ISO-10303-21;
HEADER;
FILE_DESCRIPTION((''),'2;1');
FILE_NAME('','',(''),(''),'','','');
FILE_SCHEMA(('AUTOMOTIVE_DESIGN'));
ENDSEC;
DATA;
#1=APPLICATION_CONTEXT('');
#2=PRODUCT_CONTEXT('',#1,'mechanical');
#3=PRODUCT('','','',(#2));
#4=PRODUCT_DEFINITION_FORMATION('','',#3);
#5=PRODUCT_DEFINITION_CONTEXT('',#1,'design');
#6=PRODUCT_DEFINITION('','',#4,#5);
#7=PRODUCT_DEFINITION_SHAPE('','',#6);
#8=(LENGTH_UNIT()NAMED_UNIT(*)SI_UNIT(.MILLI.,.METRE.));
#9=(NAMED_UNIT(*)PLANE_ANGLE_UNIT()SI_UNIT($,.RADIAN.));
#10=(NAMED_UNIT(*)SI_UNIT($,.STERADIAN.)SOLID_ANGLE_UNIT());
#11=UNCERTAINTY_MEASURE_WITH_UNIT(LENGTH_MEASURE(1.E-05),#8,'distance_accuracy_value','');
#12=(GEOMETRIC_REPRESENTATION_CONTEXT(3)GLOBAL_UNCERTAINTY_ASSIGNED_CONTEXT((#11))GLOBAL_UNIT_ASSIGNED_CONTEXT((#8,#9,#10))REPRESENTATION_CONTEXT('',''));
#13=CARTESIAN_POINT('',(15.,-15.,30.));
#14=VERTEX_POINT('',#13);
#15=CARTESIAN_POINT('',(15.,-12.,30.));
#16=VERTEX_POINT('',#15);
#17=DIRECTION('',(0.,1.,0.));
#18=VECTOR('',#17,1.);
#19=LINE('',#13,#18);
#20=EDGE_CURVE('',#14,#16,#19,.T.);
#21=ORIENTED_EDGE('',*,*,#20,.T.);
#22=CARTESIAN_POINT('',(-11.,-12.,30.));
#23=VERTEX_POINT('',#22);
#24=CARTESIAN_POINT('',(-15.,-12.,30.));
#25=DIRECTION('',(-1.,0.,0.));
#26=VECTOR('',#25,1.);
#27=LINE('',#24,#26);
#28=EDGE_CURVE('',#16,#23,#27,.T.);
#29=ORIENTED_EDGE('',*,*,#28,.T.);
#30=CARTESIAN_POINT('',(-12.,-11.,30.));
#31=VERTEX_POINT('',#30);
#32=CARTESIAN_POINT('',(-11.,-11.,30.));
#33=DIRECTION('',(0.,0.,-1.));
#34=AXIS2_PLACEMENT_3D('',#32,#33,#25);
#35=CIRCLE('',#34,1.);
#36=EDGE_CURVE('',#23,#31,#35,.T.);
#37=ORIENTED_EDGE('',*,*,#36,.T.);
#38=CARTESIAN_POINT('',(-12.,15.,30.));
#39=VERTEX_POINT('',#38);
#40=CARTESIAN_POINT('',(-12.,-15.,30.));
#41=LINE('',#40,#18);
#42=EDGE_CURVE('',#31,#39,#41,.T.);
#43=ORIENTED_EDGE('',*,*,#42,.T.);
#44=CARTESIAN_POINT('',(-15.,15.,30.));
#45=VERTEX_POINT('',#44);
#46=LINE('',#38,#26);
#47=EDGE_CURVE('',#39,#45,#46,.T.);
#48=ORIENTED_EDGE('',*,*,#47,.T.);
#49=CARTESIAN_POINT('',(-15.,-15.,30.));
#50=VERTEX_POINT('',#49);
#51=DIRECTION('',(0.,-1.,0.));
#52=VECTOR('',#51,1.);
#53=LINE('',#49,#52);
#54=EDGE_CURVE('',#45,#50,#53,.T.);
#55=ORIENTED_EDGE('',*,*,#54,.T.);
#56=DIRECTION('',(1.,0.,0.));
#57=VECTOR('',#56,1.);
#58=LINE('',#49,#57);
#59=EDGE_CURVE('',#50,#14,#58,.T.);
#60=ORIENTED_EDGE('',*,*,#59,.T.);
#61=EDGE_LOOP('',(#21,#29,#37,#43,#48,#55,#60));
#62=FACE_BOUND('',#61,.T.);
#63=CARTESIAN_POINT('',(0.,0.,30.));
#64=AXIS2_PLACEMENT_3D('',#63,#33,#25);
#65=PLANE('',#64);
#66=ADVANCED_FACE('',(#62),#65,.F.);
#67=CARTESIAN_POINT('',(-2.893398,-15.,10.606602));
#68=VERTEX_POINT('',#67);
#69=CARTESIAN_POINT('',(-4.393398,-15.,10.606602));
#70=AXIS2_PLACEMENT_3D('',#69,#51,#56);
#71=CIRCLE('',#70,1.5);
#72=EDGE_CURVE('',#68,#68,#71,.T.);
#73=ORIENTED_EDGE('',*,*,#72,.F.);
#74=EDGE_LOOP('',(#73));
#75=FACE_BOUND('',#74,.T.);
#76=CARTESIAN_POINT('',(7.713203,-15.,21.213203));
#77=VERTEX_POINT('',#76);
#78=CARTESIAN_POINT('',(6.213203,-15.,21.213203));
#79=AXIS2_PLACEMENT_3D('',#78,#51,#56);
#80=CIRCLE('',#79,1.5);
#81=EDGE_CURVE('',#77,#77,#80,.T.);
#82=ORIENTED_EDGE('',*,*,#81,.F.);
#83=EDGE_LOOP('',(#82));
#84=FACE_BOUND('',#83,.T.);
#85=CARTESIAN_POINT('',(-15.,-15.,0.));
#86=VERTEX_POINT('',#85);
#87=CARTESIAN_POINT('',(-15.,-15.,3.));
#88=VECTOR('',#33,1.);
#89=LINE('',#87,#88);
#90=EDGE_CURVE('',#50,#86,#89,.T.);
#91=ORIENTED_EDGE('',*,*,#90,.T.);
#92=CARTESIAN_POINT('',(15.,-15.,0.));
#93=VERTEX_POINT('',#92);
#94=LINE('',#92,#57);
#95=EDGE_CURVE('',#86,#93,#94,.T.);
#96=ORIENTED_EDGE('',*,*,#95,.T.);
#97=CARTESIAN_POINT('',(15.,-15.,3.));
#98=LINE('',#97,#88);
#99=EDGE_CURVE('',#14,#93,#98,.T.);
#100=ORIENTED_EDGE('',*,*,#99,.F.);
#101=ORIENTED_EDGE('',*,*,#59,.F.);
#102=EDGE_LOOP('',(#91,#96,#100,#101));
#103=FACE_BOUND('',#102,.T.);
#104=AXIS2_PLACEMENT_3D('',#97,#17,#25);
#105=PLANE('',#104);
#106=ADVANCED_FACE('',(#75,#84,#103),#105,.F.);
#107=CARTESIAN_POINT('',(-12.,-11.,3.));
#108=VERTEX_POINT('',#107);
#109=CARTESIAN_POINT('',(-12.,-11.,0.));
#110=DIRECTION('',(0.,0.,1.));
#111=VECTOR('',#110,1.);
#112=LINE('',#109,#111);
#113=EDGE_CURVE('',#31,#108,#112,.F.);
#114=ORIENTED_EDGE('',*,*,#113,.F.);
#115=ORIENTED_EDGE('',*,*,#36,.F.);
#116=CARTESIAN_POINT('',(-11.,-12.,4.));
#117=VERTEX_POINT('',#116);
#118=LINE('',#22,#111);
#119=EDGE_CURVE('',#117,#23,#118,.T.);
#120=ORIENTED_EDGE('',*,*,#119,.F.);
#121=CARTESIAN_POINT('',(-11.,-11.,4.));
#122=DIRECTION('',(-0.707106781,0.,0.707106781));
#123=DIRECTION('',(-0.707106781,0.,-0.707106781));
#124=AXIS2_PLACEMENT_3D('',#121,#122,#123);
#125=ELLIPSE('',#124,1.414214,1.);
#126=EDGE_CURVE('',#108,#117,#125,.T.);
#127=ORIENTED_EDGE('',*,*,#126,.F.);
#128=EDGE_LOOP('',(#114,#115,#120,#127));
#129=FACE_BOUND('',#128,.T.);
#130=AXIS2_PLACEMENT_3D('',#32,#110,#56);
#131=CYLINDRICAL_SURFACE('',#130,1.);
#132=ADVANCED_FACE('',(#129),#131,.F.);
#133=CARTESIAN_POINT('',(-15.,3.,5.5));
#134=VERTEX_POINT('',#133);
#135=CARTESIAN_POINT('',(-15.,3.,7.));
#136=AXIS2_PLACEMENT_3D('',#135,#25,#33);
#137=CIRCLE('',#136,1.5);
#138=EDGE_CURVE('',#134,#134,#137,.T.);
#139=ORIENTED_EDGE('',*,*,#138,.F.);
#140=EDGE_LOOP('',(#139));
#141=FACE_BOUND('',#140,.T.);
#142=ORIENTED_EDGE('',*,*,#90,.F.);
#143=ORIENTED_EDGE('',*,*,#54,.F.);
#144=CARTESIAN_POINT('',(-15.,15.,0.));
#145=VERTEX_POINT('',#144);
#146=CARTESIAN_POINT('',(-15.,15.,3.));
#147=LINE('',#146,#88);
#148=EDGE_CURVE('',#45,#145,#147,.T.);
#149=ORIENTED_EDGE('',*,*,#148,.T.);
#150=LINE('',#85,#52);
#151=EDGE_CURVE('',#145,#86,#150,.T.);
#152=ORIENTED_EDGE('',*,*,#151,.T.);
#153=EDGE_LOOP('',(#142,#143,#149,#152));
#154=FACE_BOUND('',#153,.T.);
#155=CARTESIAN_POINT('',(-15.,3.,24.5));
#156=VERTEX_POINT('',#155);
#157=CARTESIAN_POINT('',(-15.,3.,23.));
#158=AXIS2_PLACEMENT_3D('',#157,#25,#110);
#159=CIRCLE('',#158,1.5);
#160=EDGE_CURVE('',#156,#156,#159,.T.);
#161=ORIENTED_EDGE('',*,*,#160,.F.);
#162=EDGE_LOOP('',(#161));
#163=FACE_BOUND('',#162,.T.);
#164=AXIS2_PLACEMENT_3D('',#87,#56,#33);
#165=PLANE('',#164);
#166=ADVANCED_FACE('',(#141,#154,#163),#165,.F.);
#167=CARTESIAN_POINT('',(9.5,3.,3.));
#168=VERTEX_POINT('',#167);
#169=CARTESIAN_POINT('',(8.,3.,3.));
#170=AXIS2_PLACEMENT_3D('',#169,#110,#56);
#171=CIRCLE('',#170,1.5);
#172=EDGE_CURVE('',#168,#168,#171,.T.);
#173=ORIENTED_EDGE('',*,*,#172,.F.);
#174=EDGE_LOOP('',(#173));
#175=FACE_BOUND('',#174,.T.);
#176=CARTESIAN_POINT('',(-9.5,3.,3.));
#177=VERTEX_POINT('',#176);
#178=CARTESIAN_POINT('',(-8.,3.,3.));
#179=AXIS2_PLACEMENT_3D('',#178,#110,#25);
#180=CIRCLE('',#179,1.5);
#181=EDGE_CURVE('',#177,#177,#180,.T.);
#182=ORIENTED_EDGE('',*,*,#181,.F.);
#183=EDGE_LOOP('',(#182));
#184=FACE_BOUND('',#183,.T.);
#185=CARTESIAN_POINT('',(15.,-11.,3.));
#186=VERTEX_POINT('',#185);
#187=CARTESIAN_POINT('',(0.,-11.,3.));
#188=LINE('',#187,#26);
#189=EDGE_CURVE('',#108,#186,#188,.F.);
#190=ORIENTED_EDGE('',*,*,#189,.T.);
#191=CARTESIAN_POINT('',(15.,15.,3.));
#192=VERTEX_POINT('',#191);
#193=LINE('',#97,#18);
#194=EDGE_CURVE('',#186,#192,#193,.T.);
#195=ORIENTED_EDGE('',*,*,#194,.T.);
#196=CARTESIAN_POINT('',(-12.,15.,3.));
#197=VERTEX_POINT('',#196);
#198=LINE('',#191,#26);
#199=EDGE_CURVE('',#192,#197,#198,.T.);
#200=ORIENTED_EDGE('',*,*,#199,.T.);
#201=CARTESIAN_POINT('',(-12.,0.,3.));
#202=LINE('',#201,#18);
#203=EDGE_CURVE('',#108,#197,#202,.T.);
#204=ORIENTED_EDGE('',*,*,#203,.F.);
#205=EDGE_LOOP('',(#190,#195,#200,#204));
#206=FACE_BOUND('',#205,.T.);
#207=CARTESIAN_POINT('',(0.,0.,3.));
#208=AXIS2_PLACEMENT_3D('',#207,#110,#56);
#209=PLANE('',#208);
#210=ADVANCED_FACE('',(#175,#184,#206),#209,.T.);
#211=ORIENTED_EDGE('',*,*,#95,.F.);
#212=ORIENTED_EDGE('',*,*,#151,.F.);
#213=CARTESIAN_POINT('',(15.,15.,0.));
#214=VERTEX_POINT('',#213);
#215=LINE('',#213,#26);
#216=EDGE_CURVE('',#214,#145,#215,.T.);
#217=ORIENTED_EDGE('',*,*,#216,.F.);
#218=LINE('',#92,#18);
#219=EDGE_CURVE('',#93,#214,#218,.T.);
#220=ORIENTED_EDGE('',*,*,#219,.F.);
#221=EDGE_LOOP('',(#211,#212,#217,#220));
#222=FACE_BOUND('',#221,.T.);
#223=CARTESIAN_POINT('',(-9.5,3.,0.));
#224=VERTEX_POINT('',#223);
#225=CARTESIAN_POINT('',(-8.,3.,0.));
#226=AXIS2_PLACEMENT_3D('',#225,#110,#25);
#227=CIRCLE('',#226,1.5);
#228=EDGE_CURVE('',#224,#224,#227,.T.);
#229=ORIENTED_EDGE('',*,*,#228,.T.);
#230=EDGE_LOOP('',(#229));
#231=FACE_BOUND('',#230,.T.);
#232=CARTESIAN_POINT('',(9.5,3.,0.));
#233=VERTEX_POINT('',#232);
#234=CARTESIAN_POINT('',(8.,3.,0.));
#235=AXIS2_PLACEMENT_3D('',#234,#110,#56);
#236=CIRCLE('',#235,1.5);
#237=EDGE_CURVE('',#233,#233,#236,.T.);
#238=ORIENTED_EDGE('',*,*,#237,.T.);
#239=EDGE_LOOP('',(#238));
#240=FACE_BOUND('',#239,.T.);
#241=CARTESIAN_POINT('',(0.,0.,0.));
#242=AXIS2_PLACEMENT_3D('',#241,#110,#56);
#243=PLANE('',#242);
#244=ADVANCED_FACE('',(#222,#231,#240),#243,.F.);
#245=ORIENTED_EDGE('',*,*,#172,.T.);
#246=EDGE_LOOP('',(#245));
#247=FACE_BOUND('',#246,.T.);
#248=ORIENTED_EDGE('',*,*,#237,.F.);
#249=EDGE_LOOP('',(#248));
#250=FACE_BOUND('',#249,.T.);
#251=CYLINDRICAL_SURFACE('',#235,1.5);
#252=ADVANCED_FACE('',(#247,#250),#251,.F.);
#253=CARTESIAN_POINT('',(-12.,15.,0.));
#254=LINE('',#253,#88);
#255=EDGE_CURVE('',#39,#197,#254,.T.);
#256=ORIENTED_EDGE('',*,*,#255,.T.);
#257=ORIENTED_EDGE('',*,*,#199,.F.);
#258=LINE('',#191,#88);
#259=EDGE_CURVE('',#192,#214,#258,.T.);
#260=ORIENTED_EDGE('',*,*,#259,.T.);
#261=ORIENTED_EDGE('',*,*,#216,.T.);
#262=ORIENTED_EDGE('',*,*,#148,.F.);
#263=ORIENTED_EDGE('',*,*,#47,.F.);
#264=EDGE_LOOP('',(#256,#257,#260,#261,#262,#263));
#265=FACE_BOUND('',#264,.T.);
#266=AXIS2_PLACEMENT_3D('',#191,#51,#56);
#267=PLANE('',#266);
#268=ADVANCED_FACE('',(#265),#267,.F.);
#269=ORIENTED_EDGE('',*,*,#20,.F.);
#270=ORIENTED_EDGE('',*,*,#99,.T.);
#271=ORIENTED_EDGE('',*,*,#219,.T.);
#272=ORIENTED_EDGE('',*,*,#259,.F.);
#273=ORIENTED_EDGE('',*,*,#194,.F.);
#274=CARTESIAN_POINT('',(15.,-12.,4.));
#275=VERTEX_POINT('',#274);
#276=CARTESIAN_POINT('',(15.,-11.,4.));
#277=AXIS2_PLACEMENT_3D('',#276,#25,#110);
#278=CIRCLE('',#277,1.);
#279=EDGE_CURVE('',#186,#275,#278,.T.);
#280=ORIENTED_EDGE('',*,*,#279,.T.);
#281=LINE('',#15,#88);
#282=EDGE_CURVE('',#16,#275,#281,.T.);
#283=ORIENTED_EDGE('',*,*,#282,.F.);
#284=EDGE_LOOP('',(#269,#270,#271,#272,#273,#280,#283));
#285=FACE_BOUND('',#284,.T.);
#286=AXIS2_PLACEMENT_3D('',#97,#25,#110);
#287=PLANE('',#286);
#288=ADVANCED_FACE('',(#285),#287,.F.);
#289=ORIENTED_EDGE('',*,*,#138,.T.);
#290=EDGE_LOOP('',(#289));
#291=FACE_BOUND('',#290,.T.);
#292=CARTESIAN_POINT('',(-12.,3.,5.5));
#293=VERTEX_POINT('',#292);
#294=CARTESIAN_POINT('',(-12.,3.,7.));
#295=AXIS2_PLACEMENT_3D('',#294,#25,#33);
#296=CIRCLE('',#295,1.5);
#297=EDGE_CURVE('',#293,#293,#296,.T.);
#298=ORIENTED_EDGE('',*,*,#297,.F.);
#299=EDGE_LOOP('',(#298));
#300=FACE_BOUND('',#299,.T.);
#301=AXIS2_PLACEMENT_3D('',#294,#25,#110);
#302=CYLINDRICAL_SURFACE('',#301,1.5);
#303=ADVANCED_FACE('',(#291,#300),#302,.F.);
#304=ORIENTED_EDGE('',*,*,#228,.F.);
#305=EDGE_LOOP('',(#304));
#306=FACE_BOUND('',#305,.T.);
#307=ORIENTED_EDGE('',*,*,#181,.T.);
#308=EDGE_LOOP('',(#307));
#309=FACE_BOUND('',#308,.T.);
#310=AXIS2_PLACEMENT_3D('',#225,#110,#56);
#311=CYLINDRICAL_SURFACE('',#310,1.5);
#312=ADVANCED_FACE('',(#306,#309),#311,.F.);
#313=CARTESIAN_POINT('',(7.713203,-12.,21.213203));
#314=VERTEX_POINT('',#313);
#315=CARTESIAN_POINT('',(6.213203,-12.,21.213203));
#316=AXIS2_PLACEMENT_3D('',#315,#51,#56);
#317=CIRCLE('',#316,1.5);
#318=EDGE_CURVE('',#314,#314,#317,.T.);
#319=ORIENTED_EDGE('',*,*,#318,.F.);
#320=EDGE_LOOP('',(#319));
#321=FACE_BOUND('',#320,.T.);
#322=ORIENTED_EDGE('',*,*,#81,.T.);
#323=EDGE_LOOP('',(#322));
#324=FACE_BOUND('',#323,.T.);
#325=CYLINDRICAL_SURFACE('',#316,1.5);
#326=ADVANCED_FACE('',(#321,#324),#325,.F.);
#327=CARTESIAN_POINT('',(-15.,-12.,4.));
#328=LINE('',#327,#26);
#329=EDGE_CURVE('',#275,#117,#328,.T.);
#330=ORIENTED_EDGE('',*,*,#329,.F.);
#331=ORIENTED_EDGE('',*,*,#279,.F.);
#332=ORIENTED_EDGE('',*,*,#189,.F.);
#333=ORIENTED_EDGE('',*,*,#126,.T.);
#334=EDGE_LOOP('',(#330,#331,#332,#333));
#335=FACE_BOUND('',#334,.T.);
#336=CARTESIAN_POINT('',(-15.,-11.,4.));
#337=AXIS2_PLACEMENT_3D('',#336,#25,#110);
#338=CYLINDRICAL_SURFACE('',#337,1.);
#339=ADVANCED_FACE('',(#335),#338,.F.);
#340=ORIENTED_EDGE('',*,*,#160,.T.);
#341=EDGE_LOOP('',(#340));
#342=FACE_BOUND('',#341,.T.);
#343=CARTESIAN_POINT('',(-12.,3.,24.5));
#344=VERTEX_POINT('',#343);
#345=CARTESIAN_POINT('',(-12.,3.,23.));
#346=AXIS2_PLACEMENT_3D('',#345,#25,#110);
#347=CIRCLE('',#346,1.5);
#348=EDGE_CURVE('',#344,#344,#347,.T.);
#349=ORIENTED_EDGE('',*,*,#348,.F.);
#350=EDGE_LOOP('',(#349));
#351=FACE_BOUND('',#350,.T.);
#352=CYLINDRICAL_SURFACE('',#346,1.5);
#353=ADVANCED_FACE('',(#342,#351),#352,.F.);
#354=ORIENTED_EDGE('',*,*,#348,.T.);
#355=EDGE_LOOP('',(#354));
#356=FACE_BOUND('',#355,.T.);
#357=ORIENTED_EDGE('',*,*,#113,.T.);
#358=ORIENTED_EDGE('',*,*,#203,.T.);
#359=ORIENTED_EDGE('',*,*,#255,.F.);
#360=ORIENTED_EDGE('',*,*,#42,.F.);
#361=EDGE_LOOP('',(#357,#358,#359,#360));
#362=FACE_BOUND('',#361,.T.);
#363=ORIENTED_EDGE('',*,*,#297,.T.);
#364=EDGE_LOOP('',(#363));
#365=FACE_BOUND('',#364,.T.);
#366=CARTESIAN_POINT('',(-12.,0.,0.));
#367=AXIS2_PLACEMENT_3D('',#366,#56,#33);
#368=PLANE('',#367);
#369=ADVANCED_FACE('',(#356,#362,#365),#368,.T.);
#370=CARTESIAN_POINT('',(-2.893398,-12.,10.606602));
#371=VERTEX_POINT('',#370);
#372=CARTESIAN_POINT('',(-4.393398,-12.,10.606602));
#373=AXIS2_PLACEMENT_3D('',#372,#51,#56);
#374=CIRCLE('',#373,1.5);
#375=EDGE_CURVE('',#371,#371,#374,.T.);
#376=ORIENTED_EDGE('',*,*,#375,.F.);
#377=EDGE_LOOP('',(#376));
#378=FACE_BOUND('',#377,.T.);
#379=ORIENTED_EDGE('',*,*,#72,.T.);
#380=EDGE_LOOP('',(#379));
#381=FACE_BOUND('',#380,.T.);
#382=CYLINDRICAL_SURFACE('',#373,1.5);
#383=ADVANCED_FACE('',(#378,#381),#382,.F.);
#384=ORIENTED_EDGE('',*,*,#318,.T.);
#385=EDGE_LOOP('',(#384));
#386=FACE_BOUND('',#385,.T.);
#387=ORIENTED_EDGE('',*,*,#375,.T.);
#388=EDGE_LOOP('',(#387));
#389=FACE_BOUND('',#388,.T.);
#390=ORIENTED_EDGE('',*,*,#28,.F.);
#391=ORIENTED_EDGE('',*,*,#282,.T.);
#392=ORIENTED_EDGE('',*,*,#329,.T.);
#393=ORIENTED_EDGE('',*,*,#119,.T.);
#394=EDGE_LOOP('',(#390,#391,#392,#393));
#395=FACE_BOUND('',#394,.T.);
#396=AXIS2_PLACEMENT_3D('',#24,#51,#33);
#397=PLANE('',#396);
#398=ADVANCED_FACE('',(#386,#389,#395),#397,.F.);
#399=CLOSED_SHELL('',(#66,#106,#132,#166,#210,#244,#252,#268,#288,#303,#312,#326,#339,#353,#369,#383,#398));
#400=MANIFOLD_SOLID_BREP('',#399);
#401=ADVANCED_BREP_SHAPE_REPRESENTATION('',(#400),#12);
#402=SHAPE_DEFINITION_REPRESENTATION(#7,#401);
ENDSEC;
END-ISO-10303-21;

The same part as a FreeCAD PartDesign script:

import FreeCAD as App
import Part
import Sketcher
Q = App.Units.Quantity


def edges_at(feature, points):
    """Names of the edges that pass closest to the given points."""
    edges = feature.Shape.Edges
    near = lambda p: min(range(len(edges)), key=lambda i: edges[i].distToShape(Part.Vertex(*p))[0])
    return sorted({f"Edge{near(p) + 1}" for p in points})


def add_polygon(sketch, points):
    """Adds a closed chain of lines whose ends are joined by coincident constraints."""
    first, n = sketch.GeometryCount, len(points)
    for a, b in zip(points, points[1:] + points[:1]):
        sketch.addGeometry(Part.LineSegment(App.Vector(*a, 0), App.Vector(*b, 0)), False)
    for i in range(n):
        sketch.addConstraint(Sketcher.Constraint("Coincident", first + i, 2, first + (i + 1) % n, 1))

doc = App.newDocument("Part")
params = doc.addObject("Spreadsheet::Sheet", "Params")
for row, (alias, value) in enumerate([
    ("sketch1_width", "30 mm"),
    ("pad1_length", "3 mm"),
    ("sketch2_diameter", "3 mm"),
    ("pocket1_length", "3 mm"),
    ("sketch3_width", "30 mm"),
    ("sketch3_height", "3 mm"),
    ("pad2_length", "27 mm"),
    ("sketch4_width", "30 mm"),
    ("pad3_length", "3 mm"),
    ("fillet_radius", "1 mm"),
    ("sketch5_diameter", "3 mm"),
    ("pocket2_length", "3 mm"),
    ("sketch6_diameter", "3 mm"),
    ("pocket3_length", "3 mm"),
], start=1):
    params.set(f"A{row}", alias)
    params.set(f"B{row}", "=" + value)
    params.setAlias(f"B{row}", alias)

body = doc.addObject("PartDesign::Body", "Body")

# Sketch on XY plane
sketch1 = body.newObject("Sketcher::SketchObject", "Sketch")
sketch1.AttachmentSupport = (doc.getObject("XY_Plane"), [""])
sketch1.MapMode = "FlatFace"
add_polygon(sketch1, [(-15, 15), (-15, -15), (15, -15), (15, 15)])  # lines 0-3
sketch1.addConstraint(Sketcher.Constraint("Vertical", 0))
sketch1.addConstraint(Sketcher.Constraint("Horizontal", 1))
sketch1.addConstraint(Sketcher.Constraint("Vertical", 2))
sketch1.addConstraint(Sketcher.Constraint("Horizontal", 3))
sketch1.addConstraint(Sketcher.Constraint("Symmetric", 0, 2, 2, 2, -1, 1))
sketch1.addConstraint(Sketcher.Constraint("Equal", 3, 0))
sketch1.addConstraint(Sketcher.Constraint("DistanceX", 1, 1, 1, 2, Q("30 mm")))
sketch1.setExpression("Constraints[10]", "Params.sketch1_width")
pad1 = body.newObject("PartDesign::Pad", "Pad")
pad1.Profile = sketch1
pad1.setExpression("Length", "Params.pad1_length")

# Sketch on XY plane
sketch2 = body.newObject("Sketcher::SketchObject", "Sketch001")
sketch2.AttachmentSupport = (doc.getObject("XY_Plane"), [""])
sketch2.MapMode = "FlatFace"
sketch2.AttachmentOffset = App.Placement(App.Vector(0, 0, 3), App.Rotation())
sketch2.addGeometry(Part.Circle(App.Vector(8, 3, 0), App.Vector(0, 0, 1), 1.5), False)
sketch2.addGeometry(Part.Circle(App.Vector(-8, 3, 0), App.Vector(0, 0, 1), 1.5), False)
sketch2.addConstraint(Sketcher.Constraint("Equal", 0, 1))
sketch2.addConstraint(Sketcher.Constraint("Symmetric", 0, 3, 1, 3, -2))
sketch2.addConstraint(Sketcher.Constraint("Diameter", 0, Q("3 mm")))
sketch2.addConstraint(Sketcher.Constraint("DistanceX", -1, 1, 0, 3, Q("8 mm")))
sketch2.addConstraint(Sketcher.Constraint("DistanceY", -1, 1, 0, 3, Q("3 mm")))
sketch2.setExpression("Constraints[2]", "Params.sketch2_diameter")
pocket1 = body.newObject("PartDesign::Pocket", "Pocket")
pocket1.Profile = sketch2
pocket1.setExpression("Length", "Params.pocket1_length")

# Sketch on XY plane
sketch3 = body.newObject("Sketcher::SketchObject", "Sketch002")
sketch3.AttachmentSupport = (doc.getObject("XY_Plane"), [""])
sketch3.MapMode = "FlatFace"
sketch3.AttachmentOffset = App.Placement(App.Vector(0, 0, 3), App.Rotation())
add_polygon(sketch3, [(-15, -12), (-15, -15), (15, -15), (15, -12)])  # lines 0-3
sketch3.addConstraint(Sketcher.Constraint("Vertical", 0))
sketch3.addConstraint(Sketcher.Constraint("Horizontal", 1))
sketch3.addConstraint(Sketcher.Constraint("Vertical", 2))
sketch3.addConstraint(Sketcher.Constraint("Horizontal", 3))
sketch3.addConstraint(Sketcher.Constraint("DistanceX", 1, 1, 1, 2, Q("30 mm")))
sketch3.addConstraint(Sketcher.Constraint("DistanceY", 0, 2, 0, 1, Q("3 mm")))
sketch3.addConstraint(Sketcher.Constraint("DistanceX", 0, 2, -1, 1, Q("15 mm")))
sketch3.addConstraint(Sketcher.Constraint("DistanceY", 0, 2, -1, 1, Q("15 mm")))
sketch3.setExpression("Constraints[8]", "Params.sketch3_width")
sketch3.setExpression("Constraints[9]", "Params.sketch3_height")
pad2 = body.newObject("PartDesign::Pad", "Pad001")
pad2.Profile = sketch3
pad2.setExpression("Length", "Params.pad2_length")

# Sketch on YZ plane
sketch4 = body.newObject("Sketcher::SketchObject", "Sketch003")
sketch4.AttachmentSupport = (doc.getObject("YZ_Plane"), [""])
sketch4.MapMode = "FlatFace"
sketch4.AttachmentOffset = App.Placement(App.Vector(0, 0, -15), App.Rotation())
add_polygon(sketch4, [(15, 0), (-15, 0), (-15, 30), (15, 30)])  # lines 0-3
sketch4.addConstraint(Sketcher.Constraint("Horizontal", 0))
sketch4.addConstraint(Sketcher.Constraint("Vertical", 1))
sketch4.addConstraint(Sketcher.Constraint("Horizontal", 2))
sketch4.addConstraint(Sketcher.Constraint("Vertical", 3))
sketch4.addConstraint(Sketcher.Constraint("Symmetric", 0, 2, 3, 2, -1, 1))
sketch4.addConstraint(Sketcher.Constraint("Equal", 2, 1))
sketch4.addConstraint(Sketcher.Constraint("DistanceX", 0, 2, 0, 1, Q("30 mm")))
sketch4.setExpression("Constraints[10]", "Params.sketch4_width")
pad3 = body.newObject("PartDesign::Pad", "Pad002")
pad3.Profile = sketch4
pad3.setExpression("Length", "Params.pad3_length")
doc.recompute()

fillet = body.newObject("PartDesign::Fillet", "Fillet")
fillet.Base = (pad3, edges_at(pad3, [(1.5, -12, 3), (-12, -12, 16.5)]))
fillet.setExpression("Radius", "Params.fillet_radius")

# Sketch on XZ plane
sketch5 = body.newObject("Sketcher::SketchObject", "Sketch004")
sketch5.AttachmentSupport = (doc.getObject("XZ_Plane"), [""])
sketch5.MapMode = "FlatFace"
sketch5.AttachmentOffset = App.Placement(App.Vector(0, 0, 15), App.Rotation())
sketch5.addGeometry(Part.Circle(App.Vector(-4.393398, 10.606602, 0), App.Vector(0, 0, 1), 1.5), False)
sketch5.addGeometry(Part.Circle(App.Vector(6.213203, 21.213203, 0), App.Vector(0, 0, 1), 1.5), False)
sketch5.addConstraint(Sketcher.Constraint("Equal", 0, 1))
sketch5.addConstraint(Sketcher.Constraint("Diameter", 0, Q("3 mm")))
sketch5.addConstraint(Sketcher.Constraint("DistanceX", 0, 3, -1, 1, Q("4.393398 mm")))
sketch5.addConstraint(Sketcher.Constraint("DistanceY", -1, 1, 0, 3, Q("10.606602 mm")))
sketch5.addConstraint(Sketcher.Constraint("DistanceX", 0, 3, 1, 3, Q("10.606602 mm")))
sketch5.addConstraint(Sketcher.Constraint("DistanceY", 0, 3, 1, 3, Q("10.606602 mm")))
sketch5.setExpression("Constraints[1]", "Params.sketch5_diameter")
pocket2 = body.newObject("PartDesign::Pocket", "Pocket001")
pocket2.Profile = sketch5
pocket2.setExpression("Length", "Params.pocket2_length")

# Sketch on YZ plane
sketch6 = body.newObject("Sketcher::SketchObject", "Sketch005")
sketch6.AttachmentSupport = (doc.getObject("YZ_Plane"), [""])
sketch6.MapMode = "FlatFace"
sketch6.AttachmentOffset = App.Placement(App.Vector(0, 0, -15), App.Rotation())
sketch6.addGeometry(Part.Circle(App.Vector(3, 23, 0), App.Vector(0, 0, 1), 1.5), False)
sketch6.addGeometry(Part.Circle(App.Vector(3, 7, 0), App.Vector(0, 0, 1), 1.5), False)
sketch6.addConstraint(Sketcher.Constraint("Equal", 0, 1))
sketch6.addConstraint(Sketcher.Constraint("Vertical", 0, 3, 1, 3))
sketch6.addConstraint(Sketcher.Constraint("Diameter", 0, Q("3 mm")))
sketch6.addConstraint(Sketcher.Constraint("DistanceX", -1, 1, 0, 3, Q("3 mm")))
sketch6.addConstraint(Sketcher.Constraint("DistanceY", -1, 1, 0, 3, Q("23 mm")))
sketch6.addConstraint(Sketcher.Constraint("DistanceY", -1, 1, 1, 3, Q("7 mm")))
sketch6.setExpression("Constraints[2]", "Params.sketch6_diameter")
pocket3 = body.newObject("PartDesign::Pocket", "Pocket002")
pocket3.Profile = sketch6
pocket3.setExpression("Length", "Params.pocket3_length")
pocket3.Reversed = True

doc.recompute()
